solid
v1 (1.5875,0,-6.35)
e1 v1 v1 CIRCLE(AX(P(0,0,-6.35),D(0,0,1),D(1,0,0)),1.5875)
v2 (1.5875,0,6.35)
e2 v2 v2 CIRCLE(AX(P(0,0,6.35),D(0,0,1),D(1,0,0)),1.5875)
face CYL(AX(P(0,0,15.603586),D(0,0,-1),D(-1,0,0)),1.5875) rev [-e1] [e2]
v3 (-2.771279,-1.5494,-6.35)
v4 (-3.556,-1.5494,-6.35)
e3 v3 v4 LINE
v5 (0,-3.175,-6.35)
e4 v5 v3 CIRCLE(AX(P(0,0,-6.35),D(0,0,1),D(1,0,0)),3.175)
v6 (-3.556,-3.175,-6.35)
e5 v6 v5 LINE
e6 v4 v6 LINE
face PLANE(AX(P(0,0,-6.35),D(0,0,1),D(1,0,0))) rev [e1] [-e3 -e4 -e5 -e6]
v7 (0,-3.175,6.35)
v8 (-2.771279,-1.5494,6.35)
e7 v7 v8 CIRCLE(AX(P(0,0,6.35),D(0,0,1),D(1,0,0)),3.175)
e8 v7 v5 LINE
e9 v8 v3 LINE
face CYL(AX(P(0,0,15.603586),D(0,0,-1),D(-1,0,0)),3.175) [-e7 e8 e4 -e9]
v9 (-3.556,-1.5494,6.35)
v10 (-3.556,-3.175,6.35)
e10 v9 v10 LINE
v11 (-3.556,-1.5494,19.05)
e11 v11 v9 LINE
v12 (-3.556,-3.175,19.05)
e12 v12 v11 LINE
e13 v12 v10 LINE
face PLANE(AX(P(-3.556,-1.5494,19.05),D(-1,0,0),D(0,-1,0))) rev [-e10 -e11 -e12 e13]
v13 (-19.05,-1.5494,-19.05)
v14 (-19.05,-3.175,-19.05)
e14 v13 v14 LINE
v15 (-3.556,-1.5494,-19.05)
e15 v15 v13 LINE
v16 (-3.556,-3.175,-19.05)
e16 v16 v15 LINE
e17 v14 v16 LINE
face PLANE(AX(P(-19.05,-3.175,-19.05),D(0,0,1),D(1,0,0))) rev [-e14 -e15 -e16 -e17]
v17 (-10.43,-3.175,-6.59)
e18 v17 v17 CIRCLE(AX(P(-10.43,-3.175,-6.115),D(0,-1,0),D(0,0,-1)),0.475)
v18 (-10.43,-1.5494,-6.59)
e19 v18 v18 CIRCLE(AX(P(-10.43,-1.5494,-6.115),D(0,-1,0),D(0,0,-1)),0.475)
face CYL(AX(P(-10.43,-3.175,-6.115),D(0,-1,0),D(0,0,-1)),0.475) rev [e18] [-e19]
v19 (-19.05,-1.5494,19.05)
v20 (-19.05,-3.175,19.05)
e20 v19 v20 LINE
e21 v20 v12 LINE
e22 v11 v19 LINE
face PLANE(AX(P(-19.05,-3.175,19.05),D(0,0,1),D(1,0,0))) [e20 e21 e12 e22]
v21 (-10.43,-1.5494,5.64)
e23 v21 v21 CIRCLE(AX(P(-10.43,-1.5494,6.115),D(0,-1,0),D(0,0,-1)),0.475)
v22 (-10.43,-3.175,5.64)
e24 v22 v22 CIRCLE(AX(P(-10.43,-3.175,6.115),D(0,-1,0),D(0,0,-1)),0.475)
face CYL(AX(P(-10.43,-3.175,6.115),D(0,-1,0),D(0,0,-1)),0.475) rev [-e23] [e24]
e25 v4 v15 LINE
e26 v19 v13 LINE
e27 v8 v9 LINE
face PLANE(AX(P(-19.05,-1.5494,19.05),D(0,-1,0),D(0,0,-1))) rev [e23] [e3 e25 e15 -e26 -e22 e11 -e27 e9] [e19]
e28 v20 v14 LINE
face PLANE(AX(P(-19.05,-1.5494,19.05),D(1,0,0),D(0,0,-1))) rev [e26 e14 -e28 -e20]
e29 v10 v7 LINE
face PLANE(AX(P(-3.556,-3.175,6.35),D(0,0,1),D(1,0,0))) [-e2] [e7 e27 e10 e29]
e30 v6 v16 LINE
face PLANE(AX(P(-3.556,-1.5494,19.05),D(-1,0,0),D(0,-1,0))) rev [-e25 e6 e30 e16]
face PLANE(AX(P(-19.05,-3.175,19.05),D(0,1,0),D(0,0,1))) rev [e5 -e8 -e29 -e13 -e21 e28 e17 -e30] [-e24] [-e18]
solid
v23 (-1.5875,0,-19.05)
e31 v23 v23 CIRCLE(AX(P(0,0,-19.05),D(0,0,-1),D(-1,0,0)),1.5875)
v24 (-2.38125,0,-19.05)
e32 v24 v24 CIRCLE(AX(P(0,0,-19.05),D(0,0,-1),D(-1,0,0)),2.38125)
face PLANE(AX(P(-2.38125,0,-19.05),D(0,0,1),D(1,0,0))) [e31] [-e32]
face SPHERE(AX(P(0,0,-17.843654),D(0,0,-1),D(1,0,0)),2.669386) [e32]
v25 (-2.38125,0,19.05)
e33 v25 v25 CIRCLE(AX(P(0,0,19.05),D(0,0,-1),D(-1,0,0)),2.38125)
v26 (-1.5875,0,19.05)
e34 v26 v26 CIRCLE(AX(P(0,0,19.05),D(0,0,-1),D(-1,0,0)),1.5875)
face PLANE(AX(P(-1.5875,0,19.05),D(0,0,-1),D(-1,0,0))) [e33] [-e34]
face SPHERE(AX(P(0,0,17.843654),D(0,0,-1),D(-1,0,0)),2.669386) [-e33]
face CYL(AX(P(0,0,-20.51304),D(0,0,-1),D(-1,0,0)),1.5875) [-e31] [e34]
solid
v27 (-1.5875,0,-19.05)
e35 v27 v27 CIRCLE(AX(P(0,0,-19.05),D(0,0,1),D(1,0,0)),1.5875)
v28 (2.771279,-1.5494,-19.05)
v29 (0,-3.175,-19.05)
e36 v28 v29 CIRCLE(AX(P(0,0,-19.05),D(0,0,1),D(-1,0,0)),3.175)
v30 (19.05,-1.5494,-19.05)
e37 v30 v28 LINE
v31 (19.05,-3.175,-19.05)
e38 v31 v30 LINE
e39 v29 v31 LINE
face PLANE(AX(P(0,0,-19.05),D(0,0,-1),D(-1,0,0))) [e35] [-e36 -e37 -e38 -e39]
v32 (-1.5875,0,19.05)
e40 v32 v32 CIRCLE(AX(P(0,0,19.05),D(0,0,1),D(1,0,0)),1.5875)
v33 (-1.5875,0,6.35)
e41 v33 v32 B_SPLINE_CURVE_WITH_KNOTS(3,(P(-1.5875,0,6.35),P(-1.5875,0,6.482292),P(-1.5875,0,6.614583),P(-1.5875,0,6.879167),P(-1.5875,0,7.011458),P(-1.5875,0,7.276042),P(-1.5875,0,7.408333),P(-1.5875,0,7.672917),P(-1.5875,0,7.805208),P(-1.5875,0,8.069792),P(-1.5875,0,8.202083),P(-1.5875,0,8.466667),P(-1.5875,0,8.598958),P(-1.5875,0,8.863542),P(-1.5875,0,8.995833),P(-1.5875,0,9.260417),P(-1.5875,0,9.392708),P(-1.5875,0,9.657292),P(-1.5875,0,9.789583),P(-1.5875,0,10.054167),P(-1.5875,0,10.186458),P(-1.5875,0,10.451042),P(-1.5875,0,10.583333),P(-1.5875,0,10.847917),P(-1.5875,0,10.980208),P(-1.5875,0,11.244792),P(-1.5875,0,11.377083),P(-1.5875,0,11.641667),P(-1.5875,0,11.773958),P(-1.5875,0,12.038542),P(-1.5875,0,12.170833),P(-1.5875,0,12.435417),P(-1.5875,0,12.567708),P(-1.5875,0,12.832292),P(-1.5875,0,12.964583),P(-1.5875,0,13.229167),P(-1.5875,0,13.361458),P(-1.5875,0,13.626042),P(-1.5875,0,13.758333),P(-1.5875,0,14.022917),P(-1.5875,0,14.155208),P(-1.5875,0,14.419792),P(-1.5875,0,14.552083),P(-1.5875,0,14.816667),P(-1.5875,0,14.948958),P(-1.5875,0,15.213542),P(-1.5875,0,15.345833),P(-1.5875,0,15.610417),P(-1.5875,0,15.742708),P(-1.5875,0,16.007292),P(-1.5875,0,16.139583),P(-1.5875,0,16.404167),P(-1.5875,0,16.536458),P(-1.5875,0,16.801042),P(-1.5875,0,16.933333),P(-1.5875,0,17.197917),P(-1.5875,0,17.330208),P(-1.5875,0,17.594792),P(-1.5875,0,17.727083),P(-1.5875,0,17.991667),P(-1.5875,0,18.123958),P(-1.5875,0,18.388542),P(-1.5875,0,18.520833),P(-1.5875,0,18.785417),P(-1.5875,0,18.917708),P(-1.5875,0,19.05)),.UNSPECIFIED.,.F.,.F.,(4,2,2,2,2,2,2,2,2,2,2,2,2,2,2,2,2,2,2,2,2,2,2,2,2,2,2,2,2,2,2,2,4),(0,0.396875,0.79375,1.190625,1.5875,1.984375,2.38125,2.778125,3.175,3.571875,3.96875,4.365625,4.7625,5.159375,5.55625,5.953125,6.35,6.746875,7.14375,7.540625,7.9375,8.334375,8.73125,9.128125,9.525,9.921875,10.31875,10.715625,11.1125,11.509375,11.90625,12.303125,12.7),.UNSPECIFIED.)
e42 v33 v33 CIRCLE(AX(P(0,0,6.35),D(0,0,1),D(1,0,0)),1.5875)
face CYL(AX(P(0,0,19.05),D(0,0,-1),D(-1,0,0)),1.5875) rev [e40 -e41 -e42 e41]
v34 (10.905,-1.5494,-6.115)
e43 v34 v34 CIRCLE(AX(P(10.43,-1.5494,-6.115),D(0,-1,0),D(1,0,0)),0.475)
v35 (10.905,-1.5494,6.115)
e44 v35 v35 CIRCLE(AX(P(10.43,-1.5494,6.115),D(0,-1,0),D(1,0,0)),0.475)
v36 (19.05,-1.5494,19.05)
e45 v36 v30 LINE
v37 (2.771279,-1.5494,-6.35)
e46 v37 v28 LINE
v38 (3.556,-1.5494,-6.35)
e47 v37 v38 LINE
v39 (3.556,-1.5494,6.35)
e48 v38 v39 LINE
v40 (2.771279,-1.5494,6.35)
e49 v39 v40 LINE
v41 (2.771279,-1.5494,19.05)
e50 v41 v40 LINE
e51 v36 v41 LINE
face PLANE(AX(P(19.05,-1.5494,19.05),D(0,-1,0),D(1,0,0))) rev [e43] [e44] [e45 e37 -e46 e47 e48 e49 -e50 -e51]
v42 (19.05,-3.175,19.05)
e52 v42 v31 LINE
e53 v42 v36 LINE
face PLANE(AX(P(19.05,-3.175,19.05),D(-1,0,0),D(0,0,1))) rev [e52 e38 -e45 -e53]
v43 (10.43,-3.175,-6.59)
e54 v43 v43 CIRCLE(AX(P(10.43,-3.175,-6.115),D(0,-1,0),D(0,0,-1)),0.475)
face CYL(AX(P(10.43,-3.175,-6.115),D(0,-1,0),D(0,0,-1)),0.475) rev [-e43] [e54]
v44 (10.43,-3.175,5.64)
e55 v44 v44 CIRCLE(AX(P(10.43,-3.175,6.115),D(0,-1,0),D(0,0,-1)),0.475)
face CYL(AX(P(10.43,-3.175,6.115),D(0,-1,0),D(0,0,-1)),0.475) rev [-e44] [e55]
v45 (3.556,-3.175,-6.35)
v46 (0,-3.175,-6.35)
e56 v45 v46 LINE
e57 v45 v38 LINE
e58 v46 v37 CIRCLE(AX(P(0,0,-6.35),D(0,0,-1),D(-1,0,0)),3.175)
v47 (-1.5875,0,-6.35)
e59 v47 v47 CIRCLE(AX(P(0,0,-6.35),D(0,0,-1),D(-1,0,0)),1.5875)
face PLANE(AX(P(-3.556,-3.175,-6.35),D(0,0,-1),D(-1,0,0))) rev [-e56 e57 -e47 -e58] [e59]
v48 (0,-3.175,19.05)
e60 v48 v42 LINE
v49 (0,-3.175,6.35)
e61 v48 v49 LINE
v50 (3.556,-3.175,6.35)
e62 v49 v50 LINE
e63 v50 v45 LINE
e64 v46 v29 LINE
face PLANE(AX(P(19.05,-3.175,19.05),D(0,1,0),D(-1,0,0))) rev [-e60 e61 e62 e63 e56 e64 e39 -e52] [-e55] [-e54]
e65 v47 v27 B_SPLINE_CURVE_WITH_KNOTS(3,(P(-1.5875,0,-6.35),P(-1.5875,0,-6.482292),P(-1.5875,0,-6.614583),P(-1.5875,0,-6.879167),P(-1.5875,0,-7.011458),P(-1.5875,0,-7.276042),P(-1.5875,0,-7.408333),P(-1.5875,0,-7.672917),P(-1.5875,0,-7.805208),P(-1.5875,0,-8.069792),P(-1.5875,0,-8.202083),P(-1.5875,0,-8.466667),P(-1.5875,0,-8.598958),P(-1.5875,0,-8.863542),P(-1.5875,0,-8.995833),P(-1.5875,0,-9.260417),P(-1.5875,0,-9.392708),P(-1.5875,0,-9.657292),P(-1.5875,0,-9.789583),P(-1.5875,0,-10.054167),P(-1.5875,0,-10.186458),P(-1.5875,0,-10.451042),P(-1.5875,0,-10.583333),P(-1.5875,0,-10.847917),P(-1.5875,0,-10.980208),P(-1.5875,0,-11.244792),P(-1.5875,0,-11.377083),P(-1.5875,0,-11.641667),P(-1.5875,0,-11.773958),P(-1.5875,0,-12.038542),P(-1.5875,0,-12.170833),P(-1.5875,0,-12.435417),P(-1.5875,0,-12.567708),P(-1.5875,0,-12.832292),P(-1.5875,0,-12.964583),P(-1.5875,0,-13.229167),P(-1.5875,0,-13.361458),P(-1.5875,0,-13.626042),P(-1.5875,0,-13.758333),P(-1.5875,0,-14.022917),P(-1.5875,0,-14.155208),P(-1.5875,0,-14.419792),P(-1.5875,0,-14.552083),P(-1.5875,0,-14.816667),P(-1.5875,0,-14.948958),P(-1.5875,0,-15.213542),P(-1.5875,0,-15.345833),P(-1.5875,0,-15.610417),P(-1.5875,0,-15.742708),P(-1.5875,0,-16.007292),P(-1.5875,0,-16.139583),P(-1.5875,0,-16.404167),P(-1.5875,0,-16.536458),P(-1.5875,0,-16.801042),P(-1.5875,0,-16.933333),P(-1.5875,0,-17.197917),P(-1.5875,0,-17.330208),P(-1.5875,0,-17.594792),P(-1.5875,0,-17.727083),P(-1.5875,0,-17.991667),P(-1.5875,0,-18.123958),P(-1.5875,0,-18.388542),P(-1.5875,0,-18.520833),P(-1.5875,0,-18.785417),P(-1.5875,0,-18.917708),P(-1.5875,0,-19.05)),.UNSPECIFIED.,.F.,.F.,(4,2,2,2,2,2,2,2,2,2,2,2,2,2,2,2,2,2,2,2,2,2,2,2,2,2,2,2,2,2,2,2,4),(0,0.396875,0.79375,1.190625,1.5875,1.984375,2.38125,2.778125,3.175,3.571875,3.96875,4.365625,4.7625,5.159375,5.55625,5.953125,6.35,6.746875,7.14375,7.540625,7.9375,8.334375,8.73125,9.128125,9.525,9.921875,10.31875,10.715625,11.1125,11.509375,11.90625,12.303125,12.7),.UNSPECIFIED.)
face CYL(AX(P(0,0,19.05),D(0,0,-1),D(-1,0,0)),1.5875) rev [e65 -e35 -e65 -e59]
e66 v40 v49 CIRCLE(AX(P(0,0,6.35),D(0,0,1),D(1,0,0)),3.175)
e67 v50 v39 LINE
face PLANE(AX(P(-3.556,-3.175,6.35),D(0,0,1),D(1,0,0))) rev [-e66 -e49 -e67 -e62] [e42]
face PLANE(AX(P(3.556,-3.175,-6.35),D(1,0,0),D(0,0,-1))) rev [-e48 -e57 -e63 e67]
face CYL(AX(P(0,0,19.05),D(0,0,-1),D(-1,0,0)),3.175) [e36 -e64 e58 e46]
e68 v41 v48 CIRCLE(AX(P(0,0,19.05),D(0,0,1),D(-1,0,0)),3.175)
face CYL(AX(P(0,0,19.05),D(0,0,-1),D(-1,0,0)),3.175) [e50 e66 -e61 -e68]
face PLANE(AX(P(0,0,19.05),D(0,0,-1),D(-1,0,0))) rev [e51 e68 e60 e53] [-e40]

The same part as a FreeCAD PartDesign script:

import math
import FreeCAD as App
import Part
import Sketcher
from FreeCAD import Vector
Q = App.Units.Quantity


def add_polygon(sketch, points):
    """Adds a closed chain of lines whose ends are joined by coincident constraints."""
    first, n = sketch.GeometryCount, len(points)
    for a, b in zip(points, points[1:] + points[:1]):
        sketch.addGeometry(Part.LineSegment(App.Vector(*a, 0), App.Vector(*b, 0)), False)
    for i in range(n):
        sketch.addConstraint(Sketcher.Constraint("Coincident", first + i, 2, first + (i + 1) % n, 1))

doc = App.newDocument("Part")
body = doc.addObject("PartDesign::Body", "Body")

sketch1 = body.newObject("Sketcher::SketchObject", "Sketch")
sketch1.AttachmentSupport = (doc.getObject("XY_Plane"), [""])
sketch1.MapMode = "FlatFace"
sketch1.addGeometry([
    Part.LineSegment(Vector(0, -3.2, 0), Vector(19.1, -3.2, 0)),
    Part.LineSegment(Vector(19.1, -3.2, 0), Vector(19.1, -1.5, 0)),
    Part.LineSegment(Vector(19.1, -1.5, 0), Vector(2.8, -1.5, 0)),
    Part.ArcOfCircle(Part.Circle(Vector(0, 0, 0), Vector(0, 0, 1), 3.2), math.radians(-29), math.radians(270)),
    Part.Circle(Vector(0, 0, 0), Vector(0, 0, 1), 1.6),
], False)
sketch1.addConstraint([
    Sketcher.Constraint("Coincident", 0, 2, 1, 1),
    Sketcher.Constraint("Coincident", 1, 2, 2, 1),
    Sketcher.Constraint("Coincident", 2, 2, 3, 1),
    Sketcher.Constraint("Tangent", 3, 2, 0, 1),
    Sketcher.Constraint("Horizontal", 0),
    Sketcher.Constraint("Vertical", 1),
    Sketcher.Constraint("Horizontal", 2),
    Sketcher.Constraint("Coincident", 3, 3, -1, 1),
    Sketcher.Constraint("Coincident", 4, 3, -1, 1),
    Sketcher.Constraint("Diameter", 4, Q("0.125 in")),
    Sketcher.Constraint("Radius", 3, Q("0.125 in")),
    Sketcher.Constraint("DistanceX", 0, 1, 0, 2, Q("0.75 in")),
    Sketcher.Constraint("DistanceY", 1, 1, 1, 2, Q("0.064 in")),
])
pad1 = body.newObject("PartDesign::Pad", "Pad")
pad1.Profile = sketch1
pad1.Length = Q("1.5 in")
pad1.Midplane = True

sketch2 = body.newObject("Sketcher::SketchObject", "Sketch001")
sketch2.AttachmentSupport = (doc.getObject("XZ_Plane"), [""])
sketch2.MapMode = "FlatFace"
add_polygon(sketch2, [(-4, -6), (-4, 6), (4, 6), (4, -6)])
sketch2.addConstraint([
    Sketcher.Constraint("Vertical", 0),
    Sketcher.Constraint("Horizontal", 1),
    Sketcher.Constraint("Vertical", 2),
    Sketcher.Constraint("Horizontal", 3),
    Sketcher.Constraint("Symmetric", 0, 2, 2, 2, -1, 1),
    Sketcher.Constraint("DistanceY", 0, 1, 0, 2, Q("0.5 in")),
    Sketcher.Constraint("DistanceX", 1, 1, 1, 2, Q("0.28 in")),
])
pocket1 = body.newObject("PartDesign::Pocket", "Pocket")
pocket1.Profile = sketch2
pocket1.Type = "ThroughAll"
pocket1.Midplane = True

sketch3 = body.newObject("Sketcher::SketchObject", "Sketch002")
sketch3.AttachmentSupport = (doc.getObject("YZ_Plane"), [""])
sketch3.MapMode = "FlatFace"
sketch3.AttachmentOffset = App.Placement(Vector(0, 0, 10.43), App.Rotation())
add_polygon(sketch3, [(-1.55, -6.12), (-3.17, -6.12), (-3.17, -6.59), (-1.55, -6.59)])
sketch3.addGeometry(Part.LineSegment(Vector(-3.17, -6.12, 0), Vector(-1.55, -6.12, 0)), True)
sketch3.addConstraint([
    Sketcher.Constraint("Horizontal", 0),
    Sketcher.Constraint("Vertical", 1),
    Sketcher.Constraint("Horizontal", 2),
    Sketcher.Constraint("Vertical", 3),
    Sketcher.Constraint("Horizontal", 4),
    Sketcher.Constraint("Coincident", 4, 1, 0, 2),
    Sketcher.Constraint("Vertical", 2, 2, 4, 2),
    Sketcher.Constraint("DistanceX", 0, 2, -1, 1, Q("0.125 in")),
    Sketcher.Constraint("DistanceX", 0, 2, 0, 1, Q("1.6266 mm")),
    Sketcher.Constraint("DistanceY", 1, 2, 1, 1, Q("0.475 mm")),
    Sketcher.Constraint("DistanceY", 0, 2, -1, 1, Q("6.115 mm")),
])
groove = body.newObject("PartDesign::Groove", "Groove")
groove.Profile = sketch3
groove.ReferenceAxis = (sketch3, ["Axis0"])
groove.Angle = 360
doc.recompute()

linearpattern = body.newObject("PartDesign::LinearPattern", "LinearPattern")
linearpattern.Originals = [groove]
linearpattern.Direction = (doc.getObject("Z_Axis"), [""])
linearpattern.Mode = "offset"
linearpattern.Offset = 12.23
linearpattern.Occurrences = 2
body.Tip = linearpattern
body2 = doc.addObject("PartDesign::Body", "Body001")

sketch4 = body2.newObject("Sketcher::SketchObject", "Sketch003")
sketch4.AttachmentSupport = (doc.getObject("XY_Plane001"), [""])
sketch4.MapMode = "FlatFace"
add_polygon(sketch4, [(-19.1, -1.5), (-19.1, -3.2), (-3.6, -3.2), (-3.6, -1.5)])
sketch4.addConstraint([
    Sketcher.Constraint("Vertical", 0),
    Sketcher.Constraint("Horizontal", 1),
    Sketcher.Constraint("Vertical", 2),
    Sketcher.Constraint("Horizontal", 3),
    Sketcher.Constraint("DistanceX", 1, 1, 1, 2, Q("0.61 in")),
    Sketcher.Constraint("DistanceY", 0, 2, 0, 1, Q("0.064 in")),
    Sketcher.Constraint("DistanceX", 0, 2, -1, 1, Q("0.75 in")),
    Sketcher.Constraint("DistanceY", 0, 2, -1, 1, Q("0.125 in")),
])
pad2 = body2.newObject("PartDesign::Pad", "Pad001")
pad2.Profile = sketch4
pad2.Length = Q("1.5 in")
pad2.Midplane = True

sketch5 = body2.newObject("Sketcher::SketchObject", "Sketch004")
sketch5.AttachmentSupport = (doc.getObject("XY_Plane001"), [""])
sketch5.MapMode = "FlatFace"
sketch5.AttachmentOffset = App.Placement(Vector(0, 0, -0.25 * 25.4), App.Rotation())
sketch5.addGeometry([
    Part.LineSegment(Vector(-2.8, -1.5, 0), Vector(-3.6, -1.5, 0)),
    Part.LineSegment(Vector(-3.6, -1.5, 0), Vector(-3.6, -3.2, 0)),
    Part.LineSegment(Vector(-3.6, -3.2, 0), Vector(0, -3.2, 0)),
    Part.ArcOfCircle(Part.Circle(Vector(0, 0, 0), Vector(0, 0, 1), 3.2), math.radians(-90), math.radians(209)),
    Part.Circle(Vector(0, 0, 0), Vector(0, 0, 1), 1.6),
], False)
sketch5.addConstraint([
    Sketcher.Constraint("Coincident", 0, 2, 1, 1),
    Sketcher.Constraint("Coincident", 1, 2, 2, 1),
    Sketcher.Constraint("Tangent", 2, 2, 3, 1),
    Sketcher.Constraint("Coincident", 3, 2, 0, 1),
    Sketcher.Constraint("Horizontal", 0),
    Sketcher.Constraint("Vertical", 1),
    Sketcher.Constraint("Horizontal", 2),
    Sketcher.Constraint("Coincident", 3, 3, -1, 1),
    Sketcher.Constraint("Coincident", 4, 3, -1, 1),
    Sketcher.Constraint("Diameter", 4, Q("0.125 in")),
    Sketcher.Constraint("Radius", 3, Q("0.125 in")),
    Sketcher.Constraint("DistanceX", 2, 1, 2, 2, Q("0.14 in")),
    Sketcher.Constraint("DistanceY", 1, 2, 1, 1, Q("0.064 in")),
])
pad3 = body2.newObject("PartDesign::Pad", "Pad002")
pad3.Profile = sketch5
pad3.Length = Q("0.5 in")

sketch6 = body2.newObject("Sketcher::SketchObject", "Sketch005")
sketch6.AttachmentSupport = (doc.getObject("YZ_Plane001"), [""])
sketch6.MapMode = "FlatFace"
sketch6.AttachmentOffset = App.Placement(Vector(0, 0, -10.43), App.Rotation())
add_polygon(sketch6, [(-1.55, -6.12), (-3.17, -6.12), (-3.17, -6.59), (-1.55, -6.59)])
sketch6.addGeometry(Part.LineSegment(Vector(-3.17, -6.12, 0), Vector(-1.55, -6.12, 0)), True)
sketch6.addConstraint([
    Sketcher.Constraint("Horizontal", 0),
    Sketcher.Constraint("Vertical", 1),
    Sketcher.Constraint("Horizontal", 2),
    Sketcher.Constraint("Vertical", 3),
    Sketcher.Constraint("Horizontal", 4),
    Sketcher.Constraint("Coincident", 4, 1, 0, 2),
    Sketcher.Constraint("Vertical", 2, 2, 4, 2),
    Sketcher.Constraint("DistanceX", 0, 2, -1, 1, Q("0.125 in")),
    Sketcher.Constraint("DistanceY", 1, 2, 1, 1, Q("0.475 mm")),
    Sketcher.Constraint("DistanceX", 0, 2, 0, 1, Q("1.62665 mm")),
    Sketcher.Constraint("DistanceY", 0, 2, -1, 1, Q("6.115 mm")),
])
groove2 = body2.newObject("PartDesign::Groove", "Groove001")
groove2.Profile = sketch6
groove2.ReferenceAxis = (sketch6, ["Axis0"])
groove2.Angle = 360
doc.recompute()

linearpattern2 = body2.newObject("PartDesign::LinearPattern", "LinearPattern001")
linearpattern2.Originals = [groove2]
linearpattern2.Direction = (doc.getObject("Z_Axis001"), [""])
linearpattern2.Mode = "offset"
linearpattern2.Offset = 12.23
linearpattern2.Occurrences = 2
body2.Tip = linearpattern2
body3 = doc.addObject("PartDesign::Body", "Body002")

sketch7 = body3.newObject("Sketcher::SketchObject", "Sketch006")
sketch7.AttachmentSupport = (doc.getObject("XZ_Plane002"), [""])
sketch7.MapMode = "FlatFace"
sketch7.addGeometry([
    Part.LineSegment(Vector(-2.4, -19.1, 0), Vector(-1.6, -19.1, 0)),
    Part.LineSegment(Vector(-1.6, -19.1, 0), Vector(-1.6, 19.1, 0)),
    Part.LineSegment(Vector(-1.6, 19.1, 0), Vector(-2.4, 19.1, 0)),
    Part.ArcOfCircle(Part.Circle(Vector(0, 17.8, 0), Vector(0, 0, 1), 2.7), math.radians(90), math.radians(153)),
    Part.LineSegment(Vector(0, 20.5, 0), Vector(0, -20.5, 0)),
    Part.ArcOfCircle(Part.Circle(Vector(0, -17.8, 0), Vector(0, 0, 1), 2.7), math.radians(-153), math.radians(-90)),
], False)
sketch7.addConstraint([
    Sketcher.Constraint("Coincident", 0, 2, 1, 1),
    Sketcher.Constraint("Coincident", 1, 2, 2, 1),
    Sketcher.Constraint("Coincident", 2, 2, 3, 2),
    Sketcher.Constraint("Coincident", 3, 1, 4, 1),
    Sketcher.Constraint("Coincident", 4, 2, 5, 2),
    Sketcher.Constraint("Coincident", 5, 1, 0, 1),
    Sketcher.Constraint("Horizontal", 0),
    Sketcher.Constraint("Vertical", 1),
    Sketcher.Constraint("Horizontal", 2),
    Sketcher.Constraint("Vertical", 4),
    Sketcher.Constraint("Equal", 3, 5),
    Sketcher.Constraint("Symmetric", 3, 3, 5, 3, -1, 1),
    Sketcher.Constraint("Symmetric", 2, 2, 5, 1, -1),
    Sketcher.Constraint("PointOnObject", 3, 1, -2),
    Sketcher.Constraint("DistanceY", 1, 1, 1, 2, Q("1.5 in")),
    Sketcher.Constraint("DistanceX", 0, 1, 0, 2, Q("0.03125 in")),
    Sketcher.Constraint("DistanceY", 4, 2, 4, 1, Q("1.6152 in")),
    Sketcher.Constraint("DistanceX", 0, 2, -1, 1, Q("0.0625 in")),
])
revolution = body3.newObject("PartDesign::Revolution", "Revolution")
revolution.Profile = sketch7
revolution.ReferenceAxis = (sketch7, ["V_Axis"])
revolution.Angle = 360

doc.recompute()
